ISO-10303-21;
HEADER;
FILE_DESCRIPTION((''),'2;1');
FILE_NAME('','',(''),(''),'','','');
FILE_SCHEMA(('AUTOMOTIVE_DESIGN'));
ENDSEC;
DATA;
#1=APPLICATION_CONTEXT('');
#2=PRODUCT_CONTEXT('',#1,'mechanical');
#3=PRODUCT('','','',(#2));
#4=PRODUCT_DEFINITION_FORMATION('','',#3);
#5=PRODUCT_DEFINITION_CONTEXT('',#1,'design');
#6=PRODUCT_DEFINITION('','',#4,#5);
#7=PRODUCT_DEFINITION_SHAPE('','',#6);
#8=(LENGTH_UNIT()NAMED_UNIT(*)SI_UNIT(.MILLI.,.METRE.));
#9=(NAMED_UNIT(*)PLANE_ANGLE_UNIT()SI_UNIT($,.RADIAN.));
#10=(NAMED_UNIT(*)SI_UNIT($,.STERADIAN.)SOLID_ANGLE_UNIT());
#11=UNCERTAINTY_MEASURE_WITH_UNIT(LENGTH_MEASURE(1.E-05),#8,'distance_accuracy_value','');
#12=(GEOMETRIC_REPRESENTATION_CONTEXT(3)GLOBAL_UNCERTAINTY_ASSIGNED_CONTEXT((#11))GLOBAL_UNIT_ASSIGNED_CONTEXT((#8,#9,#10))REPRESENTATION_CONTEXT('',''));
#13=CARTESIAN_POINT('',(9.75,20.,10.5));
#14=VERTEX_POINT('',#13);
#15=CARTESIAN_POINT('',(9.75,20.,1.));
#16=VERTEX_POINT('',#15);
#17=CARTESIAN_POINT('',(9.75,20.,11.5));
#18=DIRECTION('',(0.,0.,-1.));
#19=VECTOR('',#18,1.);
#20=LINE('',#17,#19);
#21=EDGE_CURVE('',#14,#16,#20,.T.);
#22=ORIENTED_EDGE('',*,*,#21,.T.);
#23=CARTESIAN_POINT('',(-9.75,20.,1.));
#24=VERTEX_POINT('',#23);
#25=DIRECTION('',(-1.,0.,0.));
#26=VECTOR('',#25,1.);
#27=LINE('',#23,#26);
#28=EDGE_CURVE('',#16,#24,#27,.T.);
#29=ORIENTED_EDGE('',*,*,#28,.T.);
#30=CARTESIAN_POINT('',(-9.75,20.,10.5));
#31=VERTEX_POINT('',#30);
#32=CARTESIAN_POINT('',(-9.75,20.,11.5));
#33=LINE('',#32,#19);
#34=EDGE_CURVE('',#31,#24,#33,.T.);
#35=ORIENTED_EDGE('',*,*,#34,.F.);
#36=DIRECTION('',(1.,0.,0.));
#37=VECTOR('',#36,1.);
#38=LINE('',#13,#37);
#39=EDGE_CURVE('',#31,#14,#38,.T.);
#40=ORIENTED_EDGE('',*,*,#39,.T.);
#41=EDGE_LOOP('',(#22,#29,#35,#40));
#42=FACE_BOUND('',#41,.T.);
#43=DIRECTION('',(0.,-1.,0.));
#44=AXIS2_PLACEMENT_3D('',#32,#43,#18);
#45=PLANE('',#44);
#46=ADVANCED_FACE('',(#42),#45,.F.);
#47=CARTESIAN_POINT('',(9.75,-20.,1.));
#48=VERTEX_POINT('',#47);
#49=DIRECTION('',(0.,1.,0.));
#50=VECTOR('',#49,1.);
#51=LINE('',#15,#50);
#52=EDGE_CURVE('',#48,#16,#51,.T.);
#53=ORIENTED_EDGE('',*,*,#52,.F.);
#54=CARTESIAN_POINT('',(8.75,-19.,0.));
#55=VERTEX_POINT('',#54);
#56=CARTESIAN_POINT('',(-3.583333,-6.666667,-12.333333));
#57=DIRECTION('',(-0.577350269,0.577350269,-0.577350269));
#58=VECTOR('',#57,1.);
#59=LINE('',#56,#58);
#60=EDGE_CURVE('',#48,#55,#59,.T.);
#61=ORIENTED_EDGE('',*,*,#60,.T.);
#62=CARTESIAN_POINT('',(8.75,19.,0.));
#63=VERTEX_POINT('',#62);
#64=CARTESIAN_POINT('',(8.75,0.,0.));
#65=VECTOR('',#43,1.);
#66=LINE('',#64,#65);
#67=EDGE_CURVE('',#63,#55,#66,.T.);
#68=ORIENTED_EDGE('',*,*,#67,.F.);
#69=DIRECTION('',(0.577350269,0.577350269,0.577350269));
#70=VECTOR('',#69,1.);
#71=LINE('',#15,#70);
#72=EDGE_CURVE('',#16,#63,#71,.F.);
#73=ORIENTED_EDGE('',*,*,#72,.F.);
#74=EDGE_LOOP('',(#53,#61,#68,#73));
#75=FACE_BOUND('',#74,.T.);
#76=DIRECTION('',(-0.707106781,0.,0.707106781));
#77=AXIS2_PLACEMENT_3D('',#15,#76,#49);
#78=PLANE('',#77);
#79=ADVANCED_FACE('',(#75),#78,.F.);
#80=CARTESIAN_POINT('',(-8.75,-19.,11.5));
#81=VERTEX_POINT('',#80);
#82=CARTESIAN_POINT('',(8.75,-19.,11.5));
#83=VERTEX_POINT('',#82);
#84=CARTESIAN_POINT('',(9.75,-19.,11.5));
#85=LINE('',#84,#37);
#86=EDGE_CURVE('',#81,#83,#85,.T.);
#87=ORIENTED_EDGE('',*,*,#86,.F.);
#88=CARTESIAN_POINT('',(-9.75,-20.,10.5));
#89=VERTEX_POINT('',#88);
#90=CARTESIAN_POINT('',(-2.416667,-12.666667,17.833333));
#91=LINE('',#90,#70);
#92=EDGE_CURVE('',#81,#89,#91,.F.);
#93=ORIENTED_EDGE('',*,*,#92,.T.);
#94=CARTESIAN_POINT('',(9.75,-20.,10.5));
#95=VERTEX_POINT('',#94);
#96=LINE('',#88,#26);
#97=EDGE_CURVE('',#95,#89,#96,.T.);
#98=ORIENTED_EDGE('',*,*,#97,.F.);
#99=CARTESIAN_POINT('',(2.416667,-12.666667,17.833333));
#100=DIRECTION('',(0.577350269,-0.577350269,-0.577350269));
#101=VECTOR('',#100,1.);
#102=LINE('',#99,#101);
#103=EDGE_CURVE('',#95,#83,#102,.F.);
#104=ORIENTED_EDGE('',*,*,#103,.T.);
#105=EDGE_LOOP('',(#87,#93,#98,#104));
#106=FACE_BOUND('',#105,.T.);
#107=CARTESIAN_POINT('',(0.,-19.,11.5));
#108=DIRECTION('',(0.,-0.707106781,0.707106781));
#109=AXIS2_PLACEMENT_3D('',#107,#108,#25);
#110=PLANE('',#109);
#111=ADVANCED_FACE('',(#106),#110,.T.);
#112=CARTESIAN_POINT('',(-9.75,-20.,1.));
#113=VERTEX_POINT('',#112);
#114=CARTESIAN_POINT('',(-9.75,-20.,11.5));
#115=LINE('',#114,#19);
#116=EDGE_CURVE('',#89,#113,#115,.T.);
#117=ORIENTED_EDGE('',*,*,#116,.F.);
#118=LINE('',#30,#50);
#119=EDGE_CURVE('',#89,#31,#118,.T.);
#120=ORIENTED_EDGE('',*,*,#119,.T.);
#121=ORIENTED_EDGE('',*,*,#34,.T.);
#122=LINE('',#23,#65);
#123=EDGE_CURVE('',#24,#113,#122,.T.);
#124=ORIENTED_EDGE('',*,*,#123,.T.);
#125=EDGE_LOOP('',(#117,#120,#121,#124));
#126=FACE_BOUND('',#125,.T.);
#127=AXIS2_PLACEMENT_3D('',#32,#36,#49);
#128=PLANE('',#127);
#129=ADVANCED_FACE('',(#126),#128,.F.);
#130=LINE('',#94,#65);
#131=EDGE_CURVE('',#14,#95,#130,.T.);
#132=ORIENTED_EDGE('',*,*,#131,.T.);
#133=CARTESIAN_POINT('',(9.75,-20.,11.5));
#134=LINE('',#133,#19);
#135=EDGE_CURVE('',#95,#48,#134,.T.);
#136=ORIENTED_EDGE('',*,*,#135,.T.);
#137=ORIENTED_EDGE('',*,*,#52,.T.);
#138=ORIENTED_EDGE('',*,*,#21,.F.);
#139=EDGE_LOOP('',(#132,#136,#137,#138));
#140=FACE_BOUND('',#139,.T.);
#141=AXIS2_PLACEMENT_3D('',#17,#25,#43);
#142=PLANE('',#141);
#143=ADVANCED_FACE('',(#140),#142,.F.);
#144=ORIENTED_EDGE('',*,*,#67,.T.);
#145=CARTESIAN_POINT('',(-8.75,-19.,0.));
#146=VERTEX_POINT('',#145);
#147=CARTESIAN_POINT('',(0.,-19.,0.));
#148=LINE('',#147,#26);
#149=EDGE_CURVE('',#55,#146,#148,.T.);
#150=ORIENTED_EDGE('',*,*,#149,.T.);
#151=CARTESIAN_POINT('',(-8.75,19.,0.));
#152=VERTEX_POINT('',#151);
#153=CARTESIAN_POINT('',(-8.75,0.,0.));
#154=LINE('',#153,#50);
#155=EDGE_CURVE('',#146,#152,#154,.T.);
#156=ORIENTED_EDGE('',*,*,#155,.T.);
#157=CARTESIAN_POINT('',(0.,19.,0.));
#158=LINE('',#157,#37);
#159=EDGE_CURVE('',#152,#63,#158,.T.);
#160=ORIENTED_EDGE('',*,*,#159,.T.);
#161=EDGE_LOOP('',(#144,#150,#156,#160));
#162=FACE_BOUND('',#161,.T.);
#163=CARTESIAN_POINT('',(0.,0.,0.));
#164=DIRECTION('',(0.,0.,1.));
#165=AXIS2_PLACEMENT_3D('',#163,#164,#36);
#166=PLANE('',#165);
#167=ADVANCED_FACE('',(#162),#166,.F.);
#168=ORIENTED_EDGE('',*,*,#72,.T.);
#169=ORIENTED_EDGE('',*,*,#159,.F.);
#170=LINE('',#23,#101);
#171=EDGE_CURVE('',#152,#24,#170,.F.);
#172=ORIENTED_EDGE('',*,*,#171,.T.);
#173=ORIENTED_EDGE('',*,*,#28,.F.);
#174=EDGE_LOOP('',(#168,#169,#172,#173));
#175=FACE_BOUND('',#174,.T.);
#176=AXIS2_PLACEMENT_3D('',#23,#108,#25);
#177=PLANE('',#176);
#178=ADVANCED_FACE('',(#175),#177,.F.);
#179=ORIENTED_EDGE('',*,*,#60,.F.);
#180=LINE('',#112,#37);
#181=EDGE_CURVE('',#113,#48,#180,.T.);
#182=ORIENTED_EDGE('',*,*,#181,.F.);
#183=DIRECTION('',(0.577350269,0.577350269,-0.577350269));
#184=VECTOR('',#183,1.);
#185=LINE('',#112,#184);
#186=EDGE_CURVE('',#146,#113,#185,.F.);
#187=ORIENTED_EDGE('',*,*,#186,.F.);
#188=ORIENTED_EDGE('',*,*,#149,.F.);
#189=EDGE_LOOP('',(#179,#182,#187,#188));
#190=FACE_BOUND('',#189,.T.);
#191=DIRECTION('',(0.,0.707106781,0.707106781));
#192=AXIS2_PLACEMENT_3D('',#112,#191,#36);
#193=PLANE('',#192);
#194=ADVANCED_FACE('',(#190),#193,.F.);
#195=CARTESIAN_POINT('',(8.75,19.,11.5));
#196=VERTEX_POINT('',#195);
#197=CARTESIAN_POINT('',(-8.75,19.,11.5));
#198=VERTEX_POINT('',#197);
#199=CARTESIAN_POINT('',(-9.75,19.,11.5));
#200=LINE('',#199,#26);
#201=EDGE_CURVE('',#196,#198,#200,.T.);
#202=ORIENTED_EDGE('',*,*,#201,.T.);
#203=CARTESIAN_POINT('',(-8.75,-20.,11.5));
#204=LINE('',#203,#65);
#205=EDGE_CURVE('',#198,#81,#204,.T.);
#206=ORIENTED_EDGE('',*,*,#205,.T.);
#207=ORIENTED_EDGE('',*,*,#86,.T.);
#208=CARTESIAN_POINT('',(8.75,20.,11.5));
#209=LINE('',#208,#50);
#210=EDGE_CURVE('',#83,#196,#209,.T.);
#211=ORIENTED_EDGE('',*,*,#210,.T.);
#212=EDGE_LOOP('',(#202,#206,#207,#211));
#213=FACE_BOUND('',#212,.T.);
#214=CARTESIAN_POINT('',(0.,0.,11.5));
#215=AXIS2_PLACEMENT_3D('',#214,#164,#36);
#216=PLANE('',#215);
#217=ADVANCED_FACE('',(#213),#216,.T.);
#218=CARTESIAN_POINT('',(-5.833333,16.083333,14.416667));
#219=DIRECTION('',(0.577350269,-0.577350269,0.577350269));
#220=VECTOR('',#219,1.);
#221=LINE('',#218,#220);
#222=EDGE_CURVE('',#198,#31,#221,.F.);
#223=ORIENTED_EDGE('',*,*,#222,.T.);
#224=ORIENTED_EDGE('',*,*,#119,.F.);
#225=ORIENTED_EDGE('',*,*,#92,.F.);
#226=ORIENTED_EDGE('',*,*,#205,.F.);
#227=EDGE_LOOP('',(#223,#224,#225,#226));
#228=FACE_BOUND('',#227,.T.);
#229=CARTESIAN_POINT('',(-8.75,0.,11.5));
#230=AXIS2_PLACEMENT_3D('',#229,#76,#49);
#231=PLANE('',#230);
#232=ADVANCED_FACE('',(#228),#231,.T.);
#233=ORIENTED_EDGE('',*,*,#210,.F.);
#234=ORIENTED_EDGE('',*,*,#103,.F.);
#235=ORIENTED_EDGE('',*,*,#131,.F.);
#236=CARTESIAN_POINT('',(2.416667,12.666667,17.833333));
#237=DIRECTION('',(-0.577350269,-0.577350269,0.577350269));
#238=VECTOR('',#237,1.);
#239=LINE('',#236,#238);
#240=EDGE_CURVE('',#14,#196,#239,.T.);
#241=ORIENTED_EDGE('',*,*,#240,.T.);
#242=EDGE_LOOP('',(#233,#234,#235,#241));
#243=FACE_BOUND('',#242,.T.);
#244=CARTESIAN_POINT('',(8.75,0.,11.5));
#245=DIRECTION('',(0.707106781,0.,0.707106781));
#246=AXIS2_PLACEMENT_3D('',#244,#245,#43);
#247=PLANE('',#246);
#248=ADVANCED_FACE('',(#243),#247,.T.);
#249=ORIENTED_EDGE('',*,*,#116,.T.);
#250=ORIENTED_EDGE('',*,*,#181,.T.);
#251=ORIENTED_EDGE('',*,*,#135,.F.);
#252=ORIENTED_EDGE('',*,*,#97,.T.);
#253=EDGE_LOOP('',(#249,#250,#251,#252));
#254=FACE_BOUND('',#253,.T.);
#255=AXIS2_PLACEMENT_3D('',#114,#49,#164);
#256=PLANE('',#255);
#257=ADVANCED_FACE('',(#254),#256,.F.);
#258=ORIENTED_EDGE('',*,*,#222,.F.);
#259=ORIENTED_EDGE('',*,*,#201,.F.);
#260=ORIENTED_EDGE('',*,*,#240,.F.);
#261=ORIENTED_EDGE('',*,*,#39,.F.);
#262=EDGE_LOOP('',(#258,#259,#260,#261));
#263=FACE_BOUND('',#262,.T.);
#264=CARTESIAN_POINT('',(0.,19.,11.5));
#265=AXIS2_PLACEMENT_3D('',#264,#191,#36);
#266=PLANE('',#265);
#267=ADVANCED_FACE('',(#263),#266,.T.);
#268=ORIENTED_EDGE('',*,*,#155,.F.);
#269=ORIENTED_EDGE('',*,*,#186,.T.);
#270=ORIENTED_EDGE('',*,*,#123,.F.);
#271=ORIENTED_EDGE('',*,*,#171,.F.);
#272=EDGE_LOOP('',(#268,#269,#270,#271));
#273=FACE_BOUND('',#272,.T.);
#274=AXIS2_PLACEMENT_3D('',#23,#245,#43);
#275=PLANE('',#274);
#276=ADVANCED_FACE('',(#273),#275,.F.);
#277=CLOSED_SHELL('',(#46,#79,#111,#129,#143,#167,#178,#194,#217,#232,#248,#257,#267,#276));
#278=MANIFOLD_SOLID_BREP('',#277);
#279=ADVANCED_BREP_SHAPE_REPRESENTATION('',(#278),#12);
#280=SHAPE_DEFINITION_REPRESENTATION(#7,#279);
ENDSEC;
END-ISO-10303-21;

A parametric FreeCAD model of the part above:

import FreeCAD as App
import Part
import Sketcher

V = App.Vector


def edges_at(feature, points):
    """Names of the edges that pass closest to the given points."""
    edges = feature.Shape.Edges
    near = lambda p: min(range(len(edges)), key=lambda i: edges[i].distToShape(Part.Vertex(*p))[0])
    return sorted({f"Edge{near(p) + 1}" for p in points})

doc = App.newDocument("Part")
body = doc.addObject("PartDesign::Body", "Body")

# Sketch on XY plane
sketch1 = doc.addObject("Sketcher::SketchObject", "Sketch")
body.addObject(sketch1)
sketch1.AttachmentSupport = (doc.XY_Plane, [""])
sketch1.MapMode = "FlatFace"
sketch1.addGeometry([
    Part.LineSegment(V(-10, 20, 0), V(-10, -20, 0)),
    Part.LineSegment(V(-10, -20, 0), V(10, -20, 0)),
    Part.LineSegment(V(10, -20, 0), V(10, 20, 0)),
    Part.LineSegment(V(10, 20, 0), V(-10, 20, 0)),
], False)
sketch1.addConstraint([
    Sketcher.Constraint("Coincident", 0, 2, 1, 1),
    Sketcher.Constraint("Coincident", 1, 2, 2, 1),
    Sketcher.Constraint("Coincident", 2, 2, 3, 1),
    Sketcher.Constraint("Coincident", 3, 2, 0, 1),
    Sketcher.Constraint("Vertical", 0),
    Sketcher.Constraint("Horizontal", 1),
    Sketcher.Constraint("Vertical", 2),
    Sketcher.Constraint("Horizontal", 3),
    Sketcher.Constraint("Symmetric", 0, 2, 2, 2, -1, 1),
    Sketcher.Constraint("DistanceY", 0, 2, 0, 1, 40.0),
    Sketcher.Constraint("DistanceX", 1, 1, 1, 2, 19.5),
])
pad1 = doc.addObject("PartDesign::Pad", "Pad")
body.addObject(pad1)
pad1.Profile = sketch1
pad1.Length = 11.5
doc.recompute()

chamfer = doc.addObject("PartDesign::Chamfer", "Chamfer")
body.addObject(chamfer)
chamfer.Base = (pad1, edges_at(pad1, [
    (-9.75, 0, 11.5),
    (0, -20, 11.5),
    (9.75, 0, 11.5),
    (0, -20, 0),
    (-9.75, 0, 0),
    (0, 20, 0),
    (9.75, 0, 0),
    (0, 20, 11.5),
]))
chamfer.Size = 1

doc.recompute()
